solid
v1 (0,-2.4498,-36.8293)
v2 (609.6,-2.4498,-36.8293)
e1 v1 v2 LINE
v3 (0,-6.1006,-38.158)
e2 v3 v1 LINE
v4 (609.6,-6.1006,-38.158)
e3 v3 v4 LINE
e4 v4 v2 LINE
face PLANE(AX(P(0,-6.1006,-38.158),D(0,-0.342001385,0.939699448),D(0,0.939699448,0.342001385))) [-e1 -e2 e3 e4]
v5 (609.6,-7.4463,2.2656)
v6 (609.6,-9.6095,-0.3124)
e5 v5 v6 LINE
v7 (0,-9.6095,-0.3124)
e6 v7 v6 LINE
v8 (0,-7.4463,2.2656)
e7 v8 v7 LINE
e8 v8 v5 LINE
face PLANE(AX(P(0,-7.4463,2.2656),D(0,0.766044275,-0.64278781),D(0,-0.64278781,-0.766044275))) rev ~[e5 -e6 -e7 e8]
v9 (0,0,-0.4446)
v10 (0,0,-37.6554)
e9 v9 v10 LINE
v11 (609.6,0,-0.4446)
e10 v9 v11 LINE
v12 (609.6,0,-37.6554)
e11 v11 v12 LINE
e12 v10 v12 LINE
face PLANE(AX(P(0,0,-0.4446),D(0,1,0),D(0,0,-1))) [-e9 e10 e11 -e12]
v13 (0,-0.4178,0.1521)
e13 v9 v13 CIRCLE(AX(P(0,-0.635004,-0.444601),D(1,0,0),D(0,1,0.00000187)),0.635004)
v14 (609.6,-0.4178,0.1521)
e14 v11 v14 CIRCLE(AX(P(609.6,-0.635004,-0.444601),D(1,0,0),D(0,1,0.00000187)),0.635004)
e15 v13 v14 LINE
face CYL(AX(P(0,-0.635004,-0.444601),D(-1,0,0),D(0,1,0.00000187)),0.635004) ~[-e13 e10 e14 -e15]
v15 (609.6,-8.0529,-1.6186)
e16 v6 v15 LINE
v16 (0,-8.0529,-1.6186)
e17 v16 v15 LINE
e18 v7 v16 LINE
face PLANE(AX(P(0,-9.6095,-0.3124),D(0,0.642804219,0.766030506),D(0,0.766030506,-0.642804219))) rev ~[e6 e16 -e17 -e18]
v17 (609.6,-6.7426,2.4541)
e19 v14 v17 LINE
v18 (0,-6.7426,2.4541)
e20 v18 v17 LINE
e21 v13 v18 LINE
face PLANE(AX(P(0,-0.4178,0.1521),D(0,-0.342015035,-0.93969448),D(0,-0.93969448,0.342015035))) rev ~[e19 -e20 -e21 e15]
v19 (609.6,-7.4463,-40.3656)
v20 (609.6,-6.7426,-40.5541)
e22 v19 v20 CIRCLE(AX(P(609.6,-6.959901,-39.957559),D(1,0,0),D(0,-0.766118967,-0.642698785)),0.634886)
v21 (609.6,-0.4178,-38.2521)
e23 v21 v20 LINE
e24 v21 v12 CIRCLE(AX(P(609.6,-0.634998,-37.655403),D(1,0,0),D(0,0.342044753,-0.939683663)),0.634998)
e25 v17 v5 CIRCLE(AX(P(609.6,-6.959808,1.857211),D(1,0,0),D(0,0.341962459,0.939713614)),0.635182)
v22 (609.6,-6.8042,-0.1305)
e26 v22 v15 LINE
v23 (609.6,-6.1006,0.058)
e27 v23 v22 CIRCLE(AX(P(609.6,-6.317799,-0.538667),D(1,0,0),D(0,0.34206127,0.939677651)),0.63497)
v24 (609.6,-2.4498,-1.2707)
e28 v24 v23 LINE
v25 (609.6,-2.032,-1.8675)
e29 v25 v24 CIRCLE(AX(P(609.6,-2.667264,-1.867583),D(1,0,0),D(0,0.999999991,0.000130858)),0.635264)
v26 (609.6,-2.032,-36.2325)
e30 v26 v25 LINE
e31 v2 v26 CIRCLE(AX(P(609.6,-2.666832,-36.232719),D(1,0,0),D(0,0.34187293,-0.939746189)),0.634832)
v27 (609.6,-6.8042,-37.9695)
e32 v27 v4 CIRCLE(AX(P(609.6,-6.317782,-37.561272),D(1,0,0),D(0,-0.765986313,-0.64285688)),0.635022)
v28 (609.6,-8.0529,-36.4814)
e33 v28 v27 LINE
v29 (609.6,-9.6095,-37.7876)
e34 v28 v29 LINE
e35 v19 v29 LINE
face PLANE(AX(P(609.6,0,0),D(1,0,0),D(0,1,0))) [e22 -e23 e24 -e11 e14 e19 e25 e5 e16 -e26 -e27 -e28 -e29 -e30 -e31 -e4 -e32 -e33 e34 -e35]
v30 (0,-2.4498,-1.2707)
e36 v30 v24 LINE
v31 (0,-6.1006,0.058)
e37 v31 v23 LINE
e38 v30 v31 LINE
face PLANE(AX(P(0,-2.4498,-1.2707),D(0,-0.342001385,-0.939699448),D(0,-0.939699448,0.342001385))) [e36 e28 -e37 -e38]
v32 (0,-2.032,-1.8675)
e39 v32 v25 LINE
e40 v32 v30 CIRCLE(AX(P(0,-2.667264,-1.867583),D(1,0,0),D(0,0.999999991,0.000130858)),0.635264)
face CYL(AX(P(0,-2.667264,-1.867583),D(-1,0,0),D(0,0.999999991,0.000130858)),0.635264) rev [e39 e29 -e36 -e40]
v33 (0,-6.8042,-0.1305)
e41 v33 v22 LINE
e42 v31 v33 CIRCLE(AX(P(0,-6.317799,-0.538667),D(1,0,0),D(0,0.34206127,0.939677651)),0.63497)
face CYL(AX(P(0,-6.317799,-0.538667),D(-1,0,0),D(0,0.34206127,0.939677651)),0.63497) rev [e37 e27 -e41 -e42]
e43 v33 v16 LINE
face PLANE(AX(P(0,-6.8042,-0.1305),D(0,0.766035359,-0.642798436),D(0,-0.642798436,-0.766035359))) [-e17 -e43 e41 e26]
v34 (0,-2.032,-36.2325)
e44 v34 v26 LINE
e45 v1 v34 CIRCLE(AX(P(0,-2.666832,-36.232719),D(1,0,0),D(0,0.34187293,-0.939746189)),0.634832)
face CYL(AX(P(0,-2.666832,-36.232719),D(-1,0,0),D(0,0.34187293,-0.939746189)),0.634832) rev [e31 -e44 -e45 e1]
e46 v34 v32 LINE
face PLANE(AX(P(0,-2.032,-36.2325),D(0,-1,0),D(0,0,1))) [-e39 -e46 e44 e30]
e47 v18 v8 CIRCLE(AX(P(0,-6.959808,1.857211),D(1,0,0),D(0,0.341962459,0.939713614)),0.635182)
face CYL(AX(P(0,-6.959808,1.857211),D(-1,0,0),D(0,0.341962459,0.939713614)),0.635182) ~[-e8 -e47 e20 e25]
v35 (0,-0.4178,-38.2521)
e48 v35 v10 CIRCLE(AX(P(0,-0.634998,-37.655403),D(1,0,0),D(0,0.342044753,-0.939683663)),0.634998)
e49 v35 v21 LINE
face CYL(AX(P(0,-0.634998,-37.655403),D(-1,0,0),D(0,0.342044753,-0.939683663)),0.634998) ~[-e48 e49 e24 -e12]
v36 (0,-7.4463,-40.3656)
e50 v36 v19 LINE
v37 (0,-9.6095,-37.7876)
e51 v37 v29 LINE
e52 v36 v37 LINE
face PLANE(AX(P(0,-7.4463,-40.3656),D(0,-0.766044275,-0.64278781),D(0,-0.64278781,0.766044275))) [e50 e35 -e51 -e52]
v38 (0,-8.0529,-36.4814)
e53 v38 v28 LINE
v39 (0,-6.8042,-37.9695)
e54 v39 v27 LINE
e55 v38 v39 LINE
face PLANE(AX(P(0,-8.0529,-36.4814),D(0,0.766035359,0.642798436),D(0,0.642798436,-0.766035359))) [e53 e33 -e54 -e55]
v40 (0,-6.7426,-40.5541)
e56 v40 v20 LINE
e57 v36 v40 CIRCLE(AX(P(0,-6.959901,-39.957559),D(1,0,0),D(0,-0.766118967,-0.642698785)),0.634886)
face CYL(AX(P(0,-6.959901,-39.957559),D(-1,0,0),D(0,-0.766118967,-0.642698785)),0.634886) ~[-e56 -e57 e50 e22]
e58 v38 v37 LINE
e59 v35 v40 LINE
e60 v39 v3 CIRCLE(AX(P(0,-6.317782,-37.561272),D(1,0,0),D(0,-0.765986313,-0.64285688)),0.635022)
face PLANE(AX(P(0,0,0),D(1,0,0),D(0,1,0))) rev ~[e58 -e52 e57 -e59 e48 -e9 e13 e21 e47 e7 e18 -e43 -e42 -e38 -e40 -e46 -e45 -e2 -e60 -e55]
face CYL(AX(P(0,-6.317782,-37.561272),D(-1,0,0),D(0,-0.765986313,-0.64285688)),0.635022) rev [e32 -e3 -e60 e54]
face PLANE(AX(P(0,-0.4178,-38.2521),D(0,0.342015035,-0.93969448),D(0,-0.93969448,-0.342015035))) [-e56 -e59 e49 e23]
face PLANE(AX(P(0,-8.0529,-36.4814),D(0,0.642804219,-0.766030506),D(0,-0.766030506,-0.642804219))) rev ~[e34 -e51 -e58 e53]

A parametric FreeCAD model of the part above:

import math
import FreeCAD as App
import Part
import Sketcher
from FreeCAD import Vector
Q = App.Units.Quantity

doc = App.newDocument("Part")
params = doc.addObject("Spreadsheet::Sheet", "Params")
for row, (alias, value) in enumerate([
    ("sketch1_radius", "0.025 in"),
    ("sketch1_length", "0.08 in"),
    ("sketch1_height", "1.465 in"),
    ("sketch1_length2", "0.265 in"),
    ("pad1_length", "24 in"),
], start=1):
    params.set(f"A{row}", alias)
    params.set(f"B{row}", "=" + value)
    params.setAlias(f"B{row}", alias)

body = doc.addObject("PartDesign::Body", "Body")

# Sketch on YZ plane
sketch1 = body.newObject("Sketcher::SketchObject", "Sketch")
sketch1.AttachmentSupport = (doc.getObject("YZ_Plane"), [""])
sketch1.MapMode = "FlatFace"
sketch1.addGeometry([
    Part.LineSegment(Vector(0, -37.6554, 0), Vector(0, -0.4446, 0)),  # 0
    Part.ArcOfCircle(Part.Circle(Vector(-0.635, -0.4446, 0), Vector(0, 0, 1), 0.635), math.radians(0), math.radians(69.998392)),  # 1
    Part.LineSegment(Vector(-0.4178, 0.1521, 0), Vector(-6.7426, 2.4541, 0)),  # 2
    Part.ArcOfCircle(Part.Circle(Vector(-6.9598, 1.8574, 0), Vector(0, 0, 1), 0.635001), math.radians(69.998392), math.radians(140.001518)),  # 3
    Part.LineSegment(Vector(-7.4463, 2.2656, 0), Vector(-9.6095, -0.3124, 0)),  # 4
    Part.LineSegment(Vector(-9.6095, -0.3124, 0), Vector(-8.0529, -1.6186, 0)),  # 5
    Part.LineSegment(Vector(-8.0529, -1.6186, 0), Vector(-6.8042, -0.1305, 0)),  # 6
    Part.ArcOfCircle(Part.Circle(Vector(-6.3178, -0.5387, 0), Vector(0, 0, 1), 0.635001), math.radians(69.998392), math.radians(139.995719)),  # 7
    Part.LineSegment(Vector(-6.1006, 0.058, 0), Vector(-2.4498, -1.2707, 0)),  # 8
    Part.ArcOfCircle(Part.Circle(Vector(-2.667, -1.8675, 0), Vector(0, 0, 1), 0.635), math.radians(0), math.radians(70.001478)),  # 9
    Part.LineSegment(Vector(-2.032, -1.8675, 0), Vector(-2.032, -36.2325, 0)),  # 10
    Part.ArcOfCircle(Part.Circle(Vector(-2.667, -36.2325, 0), Vector(0, 0, 1), 0.635095), math.radians(-70.001478), math.radians(0)),  # 11
    Part.LineSegment(Vector(-2.4498, -36.8293, 0), Vector(-6.1006, -38.158, 0)),  # 12
    Part.ArcOfCircle(Part.Circle(Vector(-6.3178, -37.5613, 0), Vector(0, 0, 1), 0.63499), math.radians(-139.995719), math.radians(-69.998392)),  # 13
    Part.LineSegment(Vector(-6.8042, -37.9695, 0), Vector(-8.0529, -36.4814, 0)),  # 14
    Part.LineSegment(Vector(-8.0529, -36.4814, 0), Vector(-9.6095, -37.7876, 0)),  # 15
    Part.LineSegment(Vector(-9.6095, -37.7876, 0), Vector(-7.4463, -40.3656, 0)),  # 16
    Part.ArcOfCircle(Part.Circle(Vector(-6.9598, -39.9574, 0), Vector(0, 0, 1), 0.635067), math.radians(-140.001518), math.radians(-69.998392)),  # 17
    Part.LineSegment(Vector(-6.7426, -40.5541, 0), Vector(-0.4178, -38.2521, 0)),  # 18
    Part.ArcOfCircle(Part.Circle(Vector(-0.635, -37.6554, 0), Vector(0, 0, 1), 0.635001), math.radians(-69.998392), math.radians(0)),  # 19
], False)
sketch1.addConstraint([
    Sketcher.Constraint("Tangent", 0, 2, 1, 1),
    Sketcher.Constraint("Tangent", 1, 2, 2, 1),
    Sketcher.Constraint("Tangent", 2, 2, 3, 1),
    Sketcher.Constraint("Tangent", 3, 2, 4, 1),
    Sketcher.Constraint("Coincident", 4, 2, 5, 1),
    Sketcher.Constraint("Coincident", 5, 2, 6, 1),
    Sketcher.Constraint("Tangent", 6, 2, 7, 2),
    Sketcher.Constraint("Tangent", 7, 1, 8, 1),
    Sketcher.Constraint("Tangent", 8, 2, 9, 2),
    Sketcher.Constraint("Tangent", 9, 1, 10, 1),
    Sketcher.Constraint("Tangent", 10, 2, 11, 2),
    Sketcher.Constraint("Tangent", 11, 1, 12, 1),
    Sketcher.Constraint("Tangent", 12, 2, 13, 2),
    Sketcher.Constraint("Tangent", 13, 1, 14, 1),
    Sketcher.Constraint("Coincident", 14, 2, 15, 1),
    Sketcher.Constraint("Coincident", 15, 2, 16, 1),
    Sketcher.Constraint("Tangent", 16, 2, 17, 1),
    Sketcher.Constraint("Tangent", 17, 2, 18, 1),
    Sketcher.Constraint("Tangent", 18, 2, 19, 1),
    Sketcher.Constraint("Tangent", 19, 2, 0, 1),
    Sketcher.Constraint("Vertical", 0),
    Sketcher.Constraint("Vertical", 10),
    Sketcher.Constraint("Equal", 1, 3),
    Sketcher.Constraint("Equal", 3, 7),
    Sketcher.Constraint("Equal", 7, 9),
    Sketcher.Constraint("Equal", 9, 11),
    Sketcher.Constraint("Equal", 11, 13),
    Sketcher.Constraint("Equal", 13, 17),
    Sketcher.Constraint("Equal", 17, 19),
    Sketcher.Constraint("PointOnObject", 0, 2, -2),
    Sketcher.Constraint("Perpendicular", 4, 5),
    Sketcher.Constraint("Perpendicular", 5, 6),
    Sketcher.Constraint("Parallel", 2, 8),
    Sketcher.Constraint("Perpendicular", 14, 15),
    Sketcher.Constraint("Perpendicular", 15, 16),
    Sketcher.Constraint("Parallel", 12, 18),
    Sketcher.Constraint("Vertical", 7, 3, 13, 3),
    Sketcher.Constraint("Vertical", 3, 3, 17, 3),
    Sketcher.Constraint("Vertical", 8, 2, 11, 1),
    Sketcher.Constraint("Vertical", 6, 2, 13, 1),
    Sketcher.Constraint("Vertical", 5, 2, 14, 2),
    Sketcher.Constraint("Vertical", 4, 2, 15, 2),
    Sketcher.Constraint("Radius", 1, Q("0.025 in")),
    Sketcher.Constraint("Distance", 5, Q("0.08 in")),
    Sketcher.Constraint("DistanceX", 9, 1, -1, 1, Q("0.08 in")),
    Sketcher.Constraint("Angle", 2, Q("160.0003 deg")),
    Sketcher.Constraint("Angle", 4, Q("-130 deg")),
    Sketcher.Constraint("DistanceY", 0, 1, 0, 2, Q("1.465 in")),
    Sketcher.Constraint("Distance", 2, Q("0.265 in")),
    Sketcher.Constraint("DistanceY", -1, 1, 1, 2, Q("0.006 in")),
    Sketcher.Constraint("DistanceY", 5, 2, 7, 1, Q("0.066 in")),
    Sketcher.Constraint("Distance", 4, Q("0.1325 in")),
])
sketch1.setExpression("Constraints[42]", "Params.sketch1_radius")
sketch1.setExpression("Constraints[43]", "Params.sketch1_length")
sketch1.setExpression("Constraints[47]", "Params.sketch1_height")
sketch1.setExpression("Constraints[48]", "Params.sketch1_length2")
pad1 = body.newObject("PartDesign::Pad", "Pad")
pad1.Profile = sketch1
pad1.setExpression("Length", "Params.pad1_length")

doc.recompute()
